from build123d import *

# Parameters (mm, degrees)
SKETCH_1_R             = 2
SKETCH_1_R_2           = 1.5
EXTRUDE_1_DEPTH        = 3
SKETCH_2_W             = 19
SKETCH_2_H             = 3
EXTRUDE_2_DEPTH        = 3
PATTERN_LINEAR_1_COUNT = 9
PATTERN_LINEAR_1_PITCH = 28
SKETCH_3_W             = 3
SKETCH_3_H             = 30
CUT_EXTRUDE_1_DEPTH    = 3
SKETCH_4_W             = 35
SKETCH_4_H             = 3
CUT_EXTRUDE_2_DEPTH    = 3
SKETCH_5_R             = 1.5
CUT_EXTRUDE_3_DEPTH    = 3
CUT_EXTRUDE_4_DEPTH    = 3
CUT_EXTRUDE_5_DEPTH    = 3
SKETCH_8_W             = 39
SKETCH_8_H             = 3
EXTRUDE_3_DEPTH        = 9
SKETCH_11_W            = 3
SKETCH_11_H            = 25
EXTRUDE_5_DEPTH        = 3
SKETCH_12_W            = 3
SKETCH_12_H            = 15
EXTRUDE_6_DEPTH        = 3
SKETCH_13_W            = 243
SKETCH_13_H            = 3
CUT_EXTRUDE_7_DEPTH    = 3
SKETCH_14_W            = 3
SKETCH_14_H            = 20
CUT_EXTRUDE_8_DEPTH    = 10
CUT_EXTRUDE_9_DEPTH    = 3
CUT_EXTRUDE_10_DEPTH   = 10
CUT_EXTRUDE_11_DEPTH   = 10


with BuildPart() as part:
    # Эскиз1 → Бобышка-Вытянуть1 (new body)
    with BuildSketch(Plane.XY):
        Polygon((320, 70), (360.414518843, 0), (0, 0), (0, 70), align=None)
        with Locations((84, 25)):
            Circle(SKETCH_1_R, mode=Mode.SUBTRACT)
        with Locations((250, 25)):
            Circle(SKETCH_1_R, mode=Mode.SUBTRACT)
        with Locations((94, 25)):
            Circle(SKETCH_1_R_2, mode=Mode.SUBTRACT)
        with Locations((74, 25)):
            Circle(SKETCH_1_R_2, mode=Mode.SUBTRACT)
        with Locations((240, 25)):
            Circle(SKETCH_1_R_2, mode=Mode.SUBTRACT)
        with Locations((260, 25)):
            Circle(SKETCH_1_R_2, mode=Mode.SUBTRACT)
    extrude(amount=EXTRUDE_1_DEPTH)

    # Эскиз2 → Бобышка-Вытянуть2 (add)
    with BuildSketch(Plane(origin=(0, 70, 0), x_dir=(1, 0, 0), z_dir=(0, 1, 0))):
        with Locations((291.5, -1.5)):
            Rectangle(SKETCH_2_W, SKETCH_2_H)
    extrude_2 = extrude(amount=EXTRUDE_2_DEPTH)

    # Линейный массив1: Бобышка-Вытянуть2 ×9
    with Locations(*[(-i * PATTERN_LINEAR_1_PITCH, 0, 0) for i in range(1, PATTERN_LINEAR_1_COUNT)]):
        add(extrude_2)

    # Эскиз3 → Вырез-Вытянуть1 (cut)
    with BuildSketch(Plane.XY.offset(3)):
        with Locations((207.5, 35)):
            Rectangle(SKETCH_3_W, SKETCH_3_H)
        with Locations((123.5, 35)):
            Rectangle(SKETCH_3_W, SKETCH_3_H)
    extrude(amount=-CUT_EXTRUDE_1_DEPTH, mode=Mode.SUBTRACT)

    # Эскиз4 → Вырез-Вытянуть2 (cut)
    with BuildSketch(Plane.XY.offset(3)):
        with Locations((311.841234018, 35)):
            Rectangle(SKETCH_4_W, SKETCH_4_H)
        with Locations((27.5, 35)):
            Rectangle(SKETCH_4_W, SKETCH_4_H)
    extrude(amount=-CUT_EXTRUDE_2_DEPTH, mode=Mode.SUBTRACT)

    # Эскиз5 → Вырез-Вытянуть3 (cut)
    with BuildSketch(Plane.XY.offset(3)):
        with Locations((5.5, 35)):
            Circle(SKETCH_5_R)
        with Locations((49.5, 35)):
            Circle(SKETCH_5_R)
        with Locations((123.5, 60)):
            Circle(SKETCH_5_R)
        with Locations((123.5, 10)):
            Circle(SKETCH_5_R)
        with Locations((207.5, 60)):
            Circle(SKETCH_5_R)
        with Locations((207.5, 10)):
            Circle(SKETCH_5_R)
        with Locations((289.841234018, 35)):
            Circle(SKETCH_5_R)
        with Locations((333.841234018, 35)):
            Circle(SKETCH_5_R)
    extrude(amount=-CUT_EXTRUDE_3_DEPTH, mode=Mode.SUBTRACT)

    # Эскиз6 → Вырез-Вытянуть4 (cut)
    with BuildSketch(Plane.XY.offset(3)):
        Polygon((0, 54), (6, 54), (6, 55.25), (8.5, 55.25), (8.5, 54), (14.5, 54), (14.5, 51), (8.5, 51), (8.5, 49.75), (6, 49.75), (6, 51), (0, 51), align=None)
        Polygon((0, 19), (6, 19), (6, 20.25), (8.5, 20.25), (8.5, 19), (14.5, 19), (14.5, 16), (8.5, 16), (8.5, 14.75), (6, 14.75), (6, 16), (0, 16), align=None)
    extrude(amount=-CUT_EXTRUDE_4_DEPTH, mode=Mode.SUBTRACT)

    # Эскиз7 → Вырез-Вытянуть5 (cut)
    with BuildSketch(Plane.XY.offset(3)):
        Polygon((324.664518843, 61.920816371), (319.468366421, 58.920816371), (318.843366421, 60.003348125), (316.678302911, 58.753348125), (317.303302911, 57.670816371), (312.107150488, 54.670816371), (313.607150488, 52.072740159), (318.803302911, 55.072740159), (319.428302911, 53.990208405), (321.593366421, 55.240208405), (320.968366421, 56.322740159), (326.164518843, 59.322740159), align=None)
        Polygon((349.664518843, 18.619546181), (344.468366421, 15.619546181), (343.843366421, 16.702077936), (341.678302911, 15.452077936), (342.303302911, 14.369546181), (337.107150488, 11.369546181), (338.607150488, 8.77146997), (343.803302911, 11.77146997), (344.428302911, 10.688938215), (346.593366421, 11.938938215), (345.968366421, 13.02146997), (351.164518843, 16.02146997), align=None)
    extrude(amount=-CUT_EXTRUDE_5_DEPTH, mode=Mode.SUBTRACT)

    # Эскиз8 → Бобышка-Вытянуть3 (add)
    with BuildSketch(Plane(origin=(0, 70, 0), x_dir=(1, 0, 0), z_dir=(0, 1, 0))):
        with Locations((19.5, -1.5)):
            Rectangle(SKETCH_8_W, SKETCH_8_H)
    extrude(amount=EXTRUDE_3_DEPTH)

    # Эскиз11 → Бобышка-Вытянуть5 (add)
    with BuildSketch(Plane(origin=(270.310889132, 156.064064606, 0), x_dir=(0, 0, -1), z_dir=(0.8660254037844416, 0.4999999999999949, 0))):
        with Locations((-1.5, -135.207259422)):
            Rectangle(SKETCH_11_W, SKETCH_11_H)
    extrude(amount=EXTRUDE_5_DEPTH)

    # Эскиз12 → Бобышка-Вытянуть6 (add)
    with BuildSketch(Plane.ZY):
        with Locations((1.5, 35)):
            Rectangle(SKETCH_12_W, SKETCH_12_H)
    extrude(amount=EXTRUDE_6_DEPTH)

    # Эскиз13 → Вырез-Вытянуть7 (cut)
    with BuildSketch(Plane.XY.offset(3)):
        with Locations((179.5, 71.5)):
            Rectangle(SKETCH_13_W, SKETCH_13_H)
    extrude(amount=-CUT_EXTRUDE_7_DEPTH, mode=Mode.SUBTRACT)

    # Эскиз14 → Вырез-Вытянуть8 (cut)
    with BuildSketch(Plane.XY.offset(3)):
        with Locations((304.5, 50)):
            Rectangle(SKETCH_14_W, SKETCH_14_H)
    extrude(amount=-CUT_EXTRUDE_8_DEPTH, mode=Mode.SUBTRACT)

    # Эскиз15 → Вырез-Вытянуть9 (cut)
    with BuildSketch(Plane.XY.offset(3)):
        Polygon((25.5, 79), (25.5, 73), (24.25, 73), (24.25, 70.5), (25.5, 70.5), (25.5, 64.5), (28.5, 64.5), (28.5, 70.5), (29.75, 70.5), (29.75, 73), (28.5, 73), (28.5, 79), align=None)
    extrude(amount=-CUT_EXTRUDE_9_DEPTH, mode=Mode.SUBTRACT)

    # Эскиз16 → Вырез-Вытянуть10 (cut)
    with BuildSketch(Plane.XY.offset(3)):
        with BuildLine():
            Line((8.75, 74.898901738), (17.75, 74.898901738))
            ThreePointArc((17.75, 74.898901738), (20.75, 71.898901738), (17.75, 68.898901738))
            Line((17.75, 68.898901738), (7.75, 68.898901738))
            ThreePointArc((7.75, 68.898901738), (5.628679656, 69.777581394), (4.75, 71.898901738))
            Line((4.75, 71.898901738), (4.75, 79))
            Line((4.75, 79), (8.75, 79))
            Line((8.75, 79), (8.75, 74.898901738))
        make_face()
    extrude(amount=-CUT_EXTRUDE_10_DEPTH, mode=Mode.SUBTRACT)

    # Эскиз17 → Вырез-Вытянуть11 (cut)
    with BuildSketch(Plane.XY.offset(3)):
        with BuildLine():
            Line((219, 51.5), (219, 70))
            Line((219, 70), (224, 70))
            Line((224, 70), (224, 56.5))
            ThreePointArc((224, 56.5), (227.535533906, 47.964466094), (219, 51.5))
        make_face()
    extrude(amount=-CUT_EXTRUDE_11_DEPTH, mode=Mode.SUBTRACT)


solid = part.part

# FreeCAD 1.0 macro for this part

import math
import FreeCAD as App
import Part
import Sketcher
Q = App.Units.Quantity

doc = App.newDocument("Part")
body = doc.addObject("PartDesign::Body", "Body")

# Sketch on XY plane
sketch1 = body.newObject("Sketcher::SketchObject", "Sketch")
sketch1.AttachmentSupport = (doc.getObject("XY_Plane"), [""])
sketch1.MapMode = "FlatFace"
sketch1.addGeometry(Part.LineSegment(App.Vector(360.414519, 0, 0), App.Vector(320, 70, 0)), False)
sketch1.addGeometry(Part.LineSegment(App.Vector(320, 70, 0), App.Vector(0, 70, 0)), False)
sketch1.addGeometry(Part.LineSegment(App.Vector(0, 70, 0), App.Vector(0, 0, 0)), False)
sketch1.addGeometry(Part.LineSegment(App.Vector(0, 0, 0), App.Vector(360.414519, 0, 0)), False)
sketch1.addGeometry(Part.Circle(App.Vector(260, 25, 0), App.Vector(0, 0, 1), 1.5), False)
sketch1.addGeometry(Part.Circle(App.Vector(250, 25, 0), App.Vector(0, 0, 1), 2), False)
sketch1.addGeometry(Part.Circle(App.Vector(240, 25, 0), App.Vector(0, 0, 1), 1.5), False)
sketch1.addGeometry(Part.Circle(App.Vector(94, 25, 0), App.Vector(0, 0, 1), 1.5), False)
sketch1.addGeometry(Part.Circle(App.Vector(84, 25, 0), App.Vector(0, 0, 1), 2), False)
sketch1.addGeometry(Part.Circle(App.Vector(74, 25, 0), App.Vector(0, 0, 1), 1.5), False)
sketch1.addConstraint(Sketcher.Constraint("Coincident", 0, 2, 1, 1))
sketch1.addConstraint(Sketcher.Constraint("Coincident", 1, 2, 2, 1))
sketch1.addConstraint(Sketcher.Constraint("Coincident", 2, 2, 3, 1))
sketch1.addConstraint(Sketcher.Constraint("Coincident", 3, 2, 0, 1))
sketch1.addConstraint(Sketcher.Constraint("Horizontal", 1))
sketch1.addConstraint(Sketcher.Constraint("Vertical", 2))
sketch1.addConstraint(Sketcher.Constraint("Horizontal", 3))
sketch1.addConstraint(Sketcher.Constraint("Coincident", 2, 2, -1, 1))
sketch1.addConstraint(Sketcher.Constraint("Equal", 4, 6))
sketch1.addConstraint(Sketcher.Constraint("Equal", 6, 7))
sketch1.addConstraint(Sketcher.Constraint("Equal", 5, 8))
sketch1.addConstraint(Sketcher.Constraint("Equal", 7, 9))
sketch1.addConstraint(Sketcher.Constraint("Horizontal", 4, 3, 5, 3))
sketch1.addConstraint(Sketcher.Constraint("Horizontal", 5, 3, 6, 3))
sketch1.addConstraint(Sketcher.Constraint("Horizontal", 6, 3, 7, 3))
sketch1.addConstraint(Sketcher.Constraint("Horizontal", 7, 3, 8, 3))
sketch1.addConstraint(Sketcher.Constraint("Horizontal", 8, 3, 9, 3))
sketch1.addConstraint(Sketcher.Constraint("Diameter", 4, Q("3 mm")))
sketch1.addConstraint(Sketcher.Constraint("Diameter", 5, Q("4 mm")))
sketch1.addConstraint(Sketcher.Constraint("DistanceX", 1, 2, 1, 1, Q("320 mm")))
sketch1.addConstraint(Sketcher.Constraint("DistanceY", 2, 2, 2, 1, Q("70 mm")))
sketch1.addConstraint(Sketcher.Constraint("Angle", 0, Q("120 deg")))
sketch1.addConstraint(Sketcher.Constraint("DistanceX", -1, 1, 4, 3, Q("260 mm")))
sketch1.addConstraint(Sketcher.Constraint("DistanceY", -1, 1, 4, 3, Q("25 mm")))
sketch1.addConstraint(Sketcher.Constraint("DistanceX", -1, 1, 5, 3, Q("250 mm")))
sketch1.addConstraint(Sketcher.Constraint("DistanceX", -1, 1, 6, 3, Q("240 mm")))
sketch1.addConstraint(Sketcher.Constraint("DistanceX", -1, 1, 7, 3, Q("94 mm")))
sketch1.addConstraint(Sketcher.Constraint("DistanceX", -1, 1, 8, 3, Q("84 mm")))
sketch1.addConstraint(Sketcher.Constraint("DistanceX", -1, 1, 9, 3, Q("74 mm")))
pad1 = body.newObject("PartDesign::Pad", "Pad")
pad1.Profile = sketch1
pad1.Length = 3

# Sketch on XZ plane
sketch2 = body.newObject("Sketcher::SketchObject", "Sketch001")
sketch2.AttachmentSupport = (doc.getObject("XZ_Plane"), [""])
sketch2.MapMode = "FlatFace"
sketch2.AttachmentOffset = App.Placement(App.Vector(0, 0, -70), App.Rotation())
sketch2.addGeometry(Part.LineSegment(App.Vector(282, 0, 0), App.Vector(282, 3, 0)), False)
sketch2.addGeometry(Part.LineSegment(App.Vector(282, 3, 0), App.Vector(301, 3, 0)), False)
sketch2.addGeometry(Part.LineSegment(App.Vector(301, 3, 0), App.Vector(301, 0, 0)), False)
sketch2.addGeometry(Part.LineSegment(App.Vector(301, 0, 0), App.Vector(282, 0, 0)), False)
sketch2.addConstraint(Sketcher.Constraint("Coincident", 0, 2, 1, 1))
sketch2.addConstraint(Sketcher.Constraint("Coincident", 1, 2, 2, 1))
sketch2.addConstraint(Sketcher.Constraint("Coincident", 2, 2, 3, 1))
sketch2.addConstraint(Sketcher.Constraint("Coincident", 3, 2, 0, 1))
sketch2.addConstraint(Sketcher.Constraint("Vertical", 0))
sketch2.addConstraint(Sketcher.Constraint("Horizontal", 1))
sketch2.addConstraint(Sketcher.Constraint("Vertical", 2))
sketch2.addConstraint(Sketcher.Constraint("Horizontal", 3))
sketch2.addConstraint(Sketcher.Constraint("PointOnObject", 2, 2, -1))
sketch2.addConstraint(Sketcher.Constraint("DistanceX", 1, 1, 1, 2, Q("19 mm")))
sketch2.addConstraint(Sketcher.Constraint("DistanceY", 0, 1, 0, 2, Q("3 mm")))
sketch2.addConstraint(Sketcher.Constraint("DistanceX", -1, 1, 0, 2, Q("282 mm")))
pad2 = body.newObject("PartDesign::Pad", "Pad001")
pad2.Profile = sketch2
pad2.Length = 3
pad2.Reversed = True
doc.recompute()

linearpattern = body.newObject("PartDesign::LinearPattern", "LinearPattern")
linearpattern.Originals = [pad2]
linearpattern.Direction = (doc.getObject("X_Axis"), [""])
linearpattern.Mode = "offset"
linearpattern.Offset = 28
linearpattern.Occurrences = 9
linearpattern.Reversed = True
body.Tip = linearpattern

# Sketch on XY plane
sketch3 = body.newObject("Sketcher::SketchObject", "Sketch002")
sketch3.AttachmentSupport = (doc.getObject("XY_Plane"), [""])
sketch3.MapMode = "FlatFace"
sketch3.AttachmentOffset = App.Placement(App.Vector(0, 0, 3), App.Rotation())
sketch3.addGeometry(Part.LineSegment(App.Vector(206, 50, 0), App.Vector(206, 20, 0)), False)
sketch3.addGeometry(Part.LineSegment(App.Vector(206, 20, 0), App.Vector(209, 20, 0)), False)
sketch3.addGeometry(Part.LineSegment(App.Vector(209, 20, 0), App.Vector(209, 50, 0)), False)
sketch3.addGeometry(Part.LineSegment(App.Vector(209, 50, 0), App.Vector(206, 50, 0)), False)
sketch3.addGeometry(Part.LineSegment(App.Vector(122, 50, 0), App.Vector(122, 20, 0)), False)
sketch3.addGeometry(Part.LineSegment(App.Vector(122, 20, 0), App.Vector(125, 20, 0)), False)
sketch3.addGeometry(Part.LineSegment(App.Vector(125, 20, 0), App.Vector(125, 50, 0)), False)
sketch3.addGeometry(Part.LineSegment(App.Vector(125, 50, 0), App.Vector(122, 50, 0)), False)
sketch3.addConstraint(Sketcher.Constraint("Coincident", 0, 2, 1, 1))
sketch3.addConstraint(Sketcher.Constraint("Coincident", 1, 2, 2, 1))
sketch3.addConstraint(Sketcher.Constraint("Coincident", 2, 2, 3, 1))
sketch3.addConstraint(Sketcher.Constraint("Coincident", 3, 2, 0, 1))
sketch3.addConstraint(Sketcher.Constraint("Coincident", 4, 2, 5, 1))
sketch3.addConstraint(Sketcher.Constraint("Coincident", 5, 2, 6, 1))
sketch3.addConstraint(Sketcher.Constraint("Coincident", 6, 2, 7, 1))
sketch3.addConstraint(Sketcher.Constraint("Coincident", 7, 2, 4, 1))
sketch3.addConstraint(Sketcher.Constraint("Vertical", 0))
sketch3.addConstraint(Sketcher.Constraint("Horizontal", 1))
sketch3.addConstraint(Sketcher.Constraint("Vertical", 2))
sketch3.addConstraint(Sketcher.Constraint("Horizontal", 3))
sketch3.addConstraint(Sketcher.Constraint("Vertical", 4))
sketch3.addConstraint(Sketcher.Constraint("Horizontal", 5))
sketch3.addConstraint(Sketcher.Constraint("Vertical", 6))
sketch3.addConstraint(Sketcher.Constraint("Horizontal", 7))
sketch3.addConstraint(Sketcher.Constraint("Horizontal", 1, 2, 4, 2))
sketch3.addConstraint(Sketcher.Constraint("Horizontal", 3, 2, 6, 2))
sketch3.addConstraint(Sketcher.Constraint("Equal", 3, 5))
sketch3.addConstraint(Sketcher.Constraint("DistanceX", 1, 1, 1, 2, Q("3 mm")))
sketch3.addConstraint(Sketcher.Constraint("DistanceY", 0, 2, 0, 1, Q("30 mm")))
sketch3.addConstraint(Sketcher.Constraint("DistanceX", -1, 1, 0, 2, Q("206 mm")))
sketch3.addConstraint(Sketcher.Constraint("DistanceY", -1, 1, 0, 2, Q("20 mm")))
sketch3.addConstraint(Sketcher.Constraint("DistanceX", -1, 1, 4, 2, Q("122 mm")))
pocket1 = body.newObject("PartDesign::Pocket", "Pocket")
pocket1.Profile = sketch3
pocket1.Length = 3

# Sketch on XY plane
sketch4 = body.newObject("Sketcher::SketchObject", "Sketch003")
sketch4.AttachmentSupport = (doc.getObject("XY_Plane"), [""])
sketch4.MapMode = "FlatFace"
sketch4.AttachmentOffset = App.Placement(App.Vector(0, 0, 3), App.Rotation())
sketch4.addGeometry(Part.LineSegment(App.Vector(294.341234, 36.5, 0), App.Vector(294.341234, 33.5, 0)), False)
sketch4.addGeometry(Part.LineSegment(App.Vector(294.341234, 33.5, 0), App.Vector(329.341234, 33.5, 0)), False)
sketch4.addGeometry(Part.LineSegment(App.Vector(329.341234, 33.5, 0), App.Vector(329.341234, 36.5, 0)), False)
sketch4.addGeometry(Part.LineSegment(App.Vector(329.341234, 36.5, 0), App.Vector(294.341234, 36.5, 0)), False)
sketch4.addGeometry(Part.LineSegment(App.Vector(10, 36.5, 0), App.Vector(10, 33.5, 0)), False)
sketch4.addGeometry(Part.LineSegment(App.Vector(10, 33.5, 0), App.Vector(45, 33.5, 0)), False)
sketch4.addGeometry(Part.LineSegment(App.Vector(45, 33.5, 0), App.Vector(45, 36.5, 0)), False)
sketch4.addGeometry(Part.LineSegment(App.Vector(45, 36.5, 0), App.Vector(10, 36.5, 0)), False)
sketch4.addConstraint(Sketcher.Constraint("Coincident", 0, 2, 1, 1))
sketch4.addConstraint(Sketcher.Constraint("Coincident", 1, 2, 2, 1))
sketch4.addConstraint(Sketcher.Constraint("Coincident", 2, 2, 3, 1))
sketch4.addConstraint(Sketcher.Constraint("Coincident", 3, 2, 0, 1))
sketch4.addConstraint(Sketcher.Constraint("Coincident", 4, 2, 5, 1))
sketch4.addConstraint(Sketcher.Constraint("Coincident", 5, 2, 6, 1))
sketch4.addConstraint(Sketcher.Constraint("Coincident", 6, 2, 7, 1))
sketch4.addConstraint(Sketcher.Constraint("Coincident", 7, 2, 4, 1))
sketch4.addConstraint(Sketcher.Constraint("Vertical", 0))
sketch4.addConstraint(Sketcher.Constraint("Horizontal", 1))
sketch4.addConstraint(Sketcher.Constraint("Vertical", 2))
sketch4.addConstraint(Sketcher.Constraint("Horizontal", 3))
sketch4.addConstraint(Sketcher.Constraint("Vertical", 4))
sketch4.addConstraint(Sketcher.Constraint("Horizontal", 5))
sketch4.addConstraint(Sketcher.Constraint("Vertical", 6))
sketch4.addConstraint(Sketcher.Constraint("Horizontal", 7))
sketch4.addConstraint(Sketcher.Constraint("Horizontal", 1, 2, 4, 2))
sketch4.addConstraint(Sketcher.Constraint("Horizontal", 3, 2, 6, 2))
sketch4.addConstraint(Sketcher.Constraint("Equal", 3, 5))
sketch4.addConstraint(Sketcher.Constraint("DistanceX", 1, 1, 1, 2, Q("35 mm")))
sketch4.addConstraint(Sketcher.Constraint("DistanceY", 0, 2, 0, 1, Q("3 mm")))
sketch4.addConstraint(Sketcher.Constraint("DistanceX", -1, 1, 4, 2, Q("10 mm")))
sketch4.addConstraint(Sketcher.Constraint("DistanceY", -1, 1, 0, 2, Q("33.5 mm")))
sketch4.addConstraint(Sketcher.Constraint("DistanceX", -1, 1, 0, 2, Q("294.341234 mm")))
pocket2 = body.newObject("PartDesign::Pocket", "Pocket001")
pocket2.Profile = sketch4
pocket2.Length = 3

# Sketch on XY plane
sketch5 = body.newObject("Sketcher::SketchObject", "Sketch004")
sketch5.AttachmentSupport = (doc.getObject("XY_Plane"), [""])
sketch5.MapMode = "FlatFace"
sketch5.AttachmentOffset = App.Placement(App.Vector(0, 0, 3), App.Rotation())
sketch5.addGeometry(Part.Circle(App.Vector(5.5, 35, 0), App.Vector(0, 0, 1), 1.5), False)
sketch5.addGeometry(Part.Circle(App.Vector(49.5, 35, 0), App.Vector(0, 0, 1), 1.5), False)
sketch5.addGeometry(Part.Circle(App.Vector(123.5, 60, 0), App.Vector(0, 0, 1), 1.5), False)
sketch5.addGeometry(Part.Circle(App.Vector(123.5, 10, 0), App.Vector(0, 0, 1), 1.5), False)
sketch5.addGeometry(Part.Circle(App.Vector(207.5, 60, 0), App.Vector(0, 0, 1), 1.5), False)
sketch5.addGeometry(Part.Circle(App.Vector(207.5, 10, 0), App.Vector(0, 0, 1), 1.5), False)
sketch5.addGeometry(Part.Circle(App.Vector(289.841234, 35, 0), App.Vector(0, 0, 1), 1.5), False)
sketch5.addGeometry(Part.Circle(App.Vector(333.841234, 35, 0), App.Vector(0, 0, 1), 1.5), False)
sketch5.addConstraint(Sketcher.Constraint("Equal", 0, 1))
sketch5.addConstraint(Sketcher.Constraint("Equal", 1, 2))
sketch5.addConstraint(Sketcher.Constraint("Equal", 2, 3))
sketch5.addConstraint(Sketcher.Constraint("Equal", 3, 4))
sketch5.addConstraint(Sketcher.Constraint("Equal", 4, 5))
sketch5.addConstraint(Sketcher.Constraint("Equal", 5, 6))
sketch5.addConstraint(Sketcher.Constraint("Equal", 6, 7))
sketch5.addConstraint(Sketcher.Constraint("Horizontal", 0, 3, 1, 3))
sketch5.addConstraint(Sketcher.Constraint("Horizontal", 2, 3, 4, 3))
sketch5.addConstraint(Sketcher.Constraint("Horizontal", 3, 3, 5, 3))
sketch5.addConstraint(Sketcher.Constraint("Horizontal", 1, 3, 6, 3))
sketch5.addConstraint(Sketcher.Constraint("Horizontal", 6, 3, 7, 3))
sketch5.addConstraint(Sketcher.Constraint("Vertical", 2, 3, 3, 3))
sketch5.addConstraint(Sketcher.Constraint("Vertical", 4, 3, 5, 3))
sketch5.addConstraint(Sketcher.Constraint("Diameter", 0, Q("3 mm")))
sketch5.addConstraint(Sketcher.Constraint("DistanceY", -1, 1, 0, 3, Q("35 mm")))
sketch5.addConstraint(Sketcher.Constraint("DistanceY", -1, 1, 2, 3, Q("60 mm")))
sketch5.addConstraint(Sketcher.Constraint("DistanceY", -1, 1, 3, 3, Q("10 mm")))
sketch5.addConstraint(Sketcher.Constraint("DistanceX", 0, 3, 1, 3, Q("44 mm")))
sketch5.addConstraint(Sketcher.Constraint("DistanceX", 1, 3, 2, 3, Q("74 mm")))
sketch5.addConstraint(Sketcher.Constraint("DistanceX", 2, 3, 4, 3, Q("84 mm")))
sketch5.addConstraint(Sketcher.Constraint("DistanceX", 6, 3, 7, 3, Q("44 mm")))
sketch5.addConstraint(Sketcher.Constraint("DistanceX", -1, 1, 0, 3, Q("5.5 mm")))
sketch5.addConstraint(Sketcher.Constraint("DistanceX", -1, 1, 6, 3, Q("289.841234 mm")))
pocket3 = body.newObject("PartDesign::Pocket", "Pocket002")
pocket3.Profile = sketch5
pocket3.Length = 3

# Sketch on XY plane
sketch6 = body.newObject("Sketcher::SketchObject", "Sketch005")
sketch6.AttachmentSupport = (doc.getObject("XY_Plane"), [""])
sketch6.MapMode = "FlatFace"
sketch6.AttachmentOffset = App.Placement(App.Vector(0, 0, 3), App.Rotation())
sketch6.addGeometry(Part.LineSegment(App.Vector(6, 54, 0), App.Vector(0, 54, 0)), False)
sketch6.addGeometry(Part.LineSegment(App.Vector(0, 54, 0), App.Vector(0, 51, 0)), False)
sketch6.addGeometry(Part.LineSegment(App.Vector(0, 51, 0), App.Vector(6, 51, 0)), False)
sketch6.addGeometry(Part.LineSegment(App.Vector(6, 51, 0), App.Vector(6, 49.75, 0)), False)
sketch6.addGeometry(Part.LineSegment(App.Vector(6, 49.75, 0), App.Vector(8.5, 49.75, 0)), False)
sketch6.addGeometry(Part.LineSegment(App.Vector(8.5, 49.75, 0), App.Vector(8.5, 51, 0)), False)
sketch6.addGeometry(Part.LineSegment(App.Vector(8.5, 51, 0), App.Vector(14.5, 51, 0)), False)
sketch6.addGeometry(Part.LineSegment(App.Vector(14.5, 51, 0), App.Vector(14.5, 54, 0)), False)
sketch6.addGeometry(Part.LineSegment(App.Vector(14.5, 54, 0), App.Vector(8.5, 54, 0)), False)
sketch6.addGeometry(Part.LineSegment(App.Vector(8.5, 54, 0), App.Vector(8.5, 55.25, 0)), False)
sketch6.addGeometry(Part.LineSegment(App.Vector(8.5, 55.25, 0), App.Vector(6, 55.25, 0)), False)
sketch6.addGeometry(Part.LineSegment(App.Vector(6, 55.25, 0), App.Vector(6, 54, 0)), False)
sketch6.addGeometry(Part.LineSegment(App.Vector(6, 19, 0), App.Vector(0, 19, 0)), False)
sketch6.addGeometry(Part.LineSegment(App.Vector(0, 19, 0), App.Vector(0, 16, 0)), False)
sketch6.addGeometry(Part.LineSegment(App.Vector(0, 16, 0), App.Vector(6, 16, 0)), False)
sketch6.addGeometry(Part.LineSegment(App.Vector(6, 16, 0), App.Vector(6, 14.75, 0)), False)
sketch6.addGeometry(Part.LineSegment(App.Vector(6, 14.75, 0), App.Vector(8.5, 14.75, 0)), False)
sketch6.addGeometry(Part.LineSegment(App.Vector(8.5, 14.75, 0), App.Vector(8.5, 16, 0)), False)
sketch6.addGeometry(Part.LineSegment(App.Vector(8.5, 16, 0), App.Vector(14.5, 16, 0)), False)
sketch6.addGeometry(Part.LineSegment(App.Vector(14.5, 16, 0), App.Vector(14.5, 19, 0)), False)
sketch6.addGeometry(Part.LineSegment(App.Vector(14.5, 19, 0), App.Vector(8.5, 19, 0)), False)
sketch6.addGeometry(Part.LineSegment(App.Vector(8.5, 19, 0), App.Vector(8.5, 20.25, 0)), False)
sketch6.addGeometry(Part.LineSegment(App.Vector(8.5, 20.25, 0), App.Vector(6, 20.25, 0)), False)
sketch6.addGeometry(Part.LineSegment(App.Vector(6, 20.25, 0), App.Vector(6, 19, 0)), False)
sketch6.addConstraint(Sketcher.Constraint("Coincident", 0, 2, 1, 1))
sketch6.addConstraint(Sketcher.Constraint("Coincident", 1, 2, 2, 1))
sketch6.addConstraint(Sketcher.Constraint("Coincident", 2, 2, 3, 1))
sketch6.addConstraint(Sketcher.Constraint("Coincident", 3, 2, 4, 1))
sketch6.addConstraint(Sketcher.Constraint("Coincident", 4, 2, 5, 1))
sketch6.addConstraint(Sketcher.Constraint("Coincident", 5, 2, 6, 1))
sketch6.addConstraint(Sketcher.Constraint("Coincident", 6, 2, 7, 1))
sketch6.addConstraint(Sketcher.Constraint("Coincident", 7, 2, 8, 1))
sketch6.addConstraint(Sketcher.Constraint("Coincident", 8, 2, 9, 1))
sketch6.addConstraint(Sketcher.Constraint("Coincident", 9, 2, 10, 1))
sketch6.addConstraint(Sketcher.Constraint("Coincident", 10, 2, 11, 1))
sketch6.addConstraint(Sketcher.Constraint("Coincident", 11, 2, 0, 1))
sketch6.addConstraint(Sketcher.Constraint("Coincident", 12, 2, 13, 1))
sketch6.addConstraint(Sketcher.Constraint("Coincident", 13, 2, 14, 1))
sketch6.addConstraint(Sketcher.Constraint("Coincident", 14, 2, 15, 1))
sketch6.addConstraint(Sketcher.Constraint("Coincident", 15, 2, 16, 1))
sketch6.addConstraint(Sketcher.Constraint("Coincident", 16, 2, 17, 1))
sketch6.addConstraint(Sketcher.Constraint("Coincident", 17, 2, 18, 1))
sketch6.addConstraint(Sketcher.Constraint("Coincident", 18, 2, 19, 1))
sketch6.addConstraint(Sketcher.Constraint("Coincident", 19, 2, 20, 1))
sketch6.addConstraint(Sketcher.Constraint("Coincident", 20, 2, 21, 1))
sketch6.addConstraint(Sketcher.Constraint("Coincident", 21, 2, 22, 1))
sketch6.addConstraint(Sketcher.Constraint("Coincident", 22, 2, 23, 1))
sketch6.addConstraint(Sketcher.Constraint("Coincident", 23, 2, 12, 1))
sketch6.addConstraint(Sketcher.Constraint("Horizontal", 0))
sketch6.addConstraint(Sketcher.Constraint("Vertical", 1))
sketch6.addConstraint(Sketcher.Constraint("Horizontal", 2))
sketch6.addConstraint(Sketcher.Constraint("Vertical", 3))
sketch6.addConstraint(Sketcher.Constraint("Horizontal", 4))
sketch6.addConstraint(Sketcher.Constraint("Vertical", 5))
sketch6.addConstraint(Sketcher.Constraint("Horizontal", 6))
sketch6.addConstraint(Sketcher.Constraint("Vertical", 7))
sketch6.addConstraint(Sketcher.Constraint("Horizontal", 8))
sketch6.addConstraint(Sketcher.Constraint("Vertical", 9))
sketch6.addConstraint(Sketcher.Constraint("Horizontal", 10))
sketch6.addConstraint(Sketcher.Constraint("Vertical", 11))
sketch6.addConstraint(Sketcher.Constraint("Horizontal", 12))
sketch6.addConstraint(Sketcher.Constraint("Vertical", 13))
sketch6.addConstraint(Sketcher.Constraint("Horizontal", 14))
sketch6.addConstraint(Sketcher.Constraint("Vertical", 15))
sketch6.addConstraint(Sketcher.Constraint("Horizontal", 16))
sketch6.addConstraint(Sketcher.Constraint("Vertical", 17))
sketch6.addConstraint(Sketcher.Constraint("Horizontal", 18))
sketch6.addConstraint(Sketcher.Constraint("Vertical", 19))
sketch6.addConstraint(Sketcher.Constraint("Horizontal", 20))
sketch6.addConstraint(Sketcher.Constraint("Vertical", 21))
sketch6.addConstraint(Sketcher.Constraint("Horizontal", 22))
sketch6.addConstraint(Sketcher.Constraint("Vertical", 23))
sketch6.addConstraint(Sketcher.Constraint("PointOnObject", 0, 2, -2))
sketch6.addConstraint(Sketcher.Constraint("PointOnObject", 12, 2, -2))
sketch6.addConstraint(Sketcher.Constraint("Horizontal", 2, 2, 5, 2))
sketch6.addConstraint(Sketcher.Constraint("Horizontal", 0, 2, 7, 2))
sketch6.addConstraint(Sketcher.Constraint("Horizontal", 14, 2, 17, 2))
sketch6.addConstraint(Sketcher.Constraint("Horizontal", 12, 2, 19, 2))
sketch6.addConstraint(Sketcher.Constraint("Vertical", 5, 2, 8, 2))
sketch6.addConstraint(Sketcher.Constraint("Vertical", 3, 2, 10, 2))
sketch6.addConstraint(Sketcher.Constraint("Vertical", 11, 2, 14, 2))
sketch6.addConstraint(Sketcher.Constraint("Vertical", 9, 2, 16, 2))
sketch6.addConstraint(Sketcher.Constraint("Vertical", 7, 2, 18, 2))
sketch6.addConstraint(Sketcher.Constraint("Vertical", 17, 2, 20, 2))
sketch6.addConstraint(Sketcher.Constraint("Vertical", 15, 2, 22, 2))
sketch6.addConstraint(Sketcher.Constraint("Equal", 2, 6))
sketch6.addConstraint(Sketcher.Constraint("Equal", 5, 9))
sketch6.addConstraint(Sketcher.Constraint("Equal", 7, 13))
sketch6.addConstraint(Sketcher.Constraint("Equal", 11, 15))
sketch6.addConstraint(Sketcher.Constraint("Equal", 17, 21))
sketch6.addConstraint(Sketcher.Constraint("DistanceX", 0, 2, 0, 1, Q("6 mm")))
sketch6.addConstraint(Sketcher.Constraint("DistanceY", 1, 2, 1, 1, Q("3 mm")))
sketch6.addConstraint(Sketcher.Constraint("DistanceX", 4, 1, 4, 2, Q("2.5 mm")))
sketch6.addConstraint(Sketcher.Constraint("DistanceY", -1, 1, 0, 2, Q("54 mm")))
sketch6.addConstraint(Sketcher.Constraint("DistanceY", -1, 1, 12, 2, Q("19 mm")))
sketch6.addConstraint(Sketcher.Constraint("DistanceY", 3, 2, 3, 1, Q("1.25 mm")))
pocket4 = body.newObject("PartDesign::Pocket", "Pocket003")
pocket4.Profile = sketch6
pocket4.Length = 3

# Sketch on XY plane
sketch7 = body.newObject("Sketcher::SketchObject", "Sketch006")
sketch7.AttachmentSupport = (doc.getObject("XY_Plane"), [""])
sketch7.MapMode = "FlatFace"
sketch7.AttachmentOffset = App.Placement(App.Vector(0, 0, 3), App.Rotation())
sketch7.addGeometry(Part.LineSegment(App.Vector(324.664519, 61.920816, 0), App.Vector(319.468366, 58.920816, 0)), False)
sketch7.addGeometry(Part.LineSegment(App.Vector(319.468366, 58.920816, 0), App.Vector(318.843366, 60.003348, 0)), False)
sketch7.addGeometry(Part.LineSegment(App.Vector(318.843366, 60.003348, 0), App.Vector(316.678303, 58.753348, 0)), False)
sketch7.addGeometry(Part.LineSegment(App.Vector(316.678303, 58.753348, 0), App.Vector(317.303303, 57.670816, 0)), False)
sketch7.addGeometry(Part.LineSegment(App.Vector(317.303303, 57.670816, 0), App.Vector(312.10715, 54.670816, 0)), False)
sketch7.addGeometry(Part.LineSegment(App.Vector(312.10715, 54.670816, 0), App.Vector(313.60715, 52.07274, 0)), False)
sketch7.addGeometry(Part.LineSegment(App.Vector(313.60715, 52.07274, 0), App.Vector(318.803303, 55.07274, 0)), False)
sketch7.addGeometry(Part.LineSegment(App.Vector(318.803303, 55.07274, 0), App.Vector(319.428303, 53.990208, 0)), False)
sketch7.addGeometry(Part.LineSegment(App.Vector(319.428303, 53.990208, 0), App.Vector(321.593366, 55.240208, 0)), False)
sketch7.addGeometry(Part.LineSegment(App.Vector(321.593366, 55.240208, 0), App.Vector(320.968366, 56.32274, 0)), False)
sketch7.addGeometry(Part.LineSegment(App.Vector(320.968366, 56.32274, 0), App.Vector(326.164519, 59.32274, 0)), False)
sketch7.addGeometry(Part.LineSegment(App.Vector(326.164519, 59.32274, 0), App.Vector(324.664519, 61.920816, 0)), False)
sketch7.addGeometry(Part.LineSegment(App.Vector(349.664519, 18.619546, 0), App.Vector(344.468366, 15.619546, 0)), False)
sketch7.addGeometry(Part.LineSegment(App.Vector(344.468366, 15.619546, 0), App.Vector(343.843366, 16.702078, 0)), False)
sketch7.addGeometry(Part.LineSegment(App.Vector(343.843366, 16.702078, 0), App.Vector(341.678303, 15.452078, 0)), False)
sketch7.addGeometry(Part.LineSegment(App.Vector(341.678303, 15.452078, 0), App.Vector(342.303303, 14.369546, 0)), False)
sketch7.addGeometry(Part.LineSegment(App.Vector(342.303303, 14.369546, 0), App.Vector(337.10715, 11.369546, 0)), False)
sketch7.addGeometry(Part.LineSegment(App.Vector(337.10715, 11.369546, 0), App.Vector(338.60715, 8.77147, 0)), False)
sketch7.addGeometry(Part.LineSegment(App.Vector(338.60715, 8.77147, 0), App.Vector(343.803303, 11.77147, 0)), False)
sketch7.addGeometry(Part.LineSegment(App.Vector(343.803303, 11.77147, 0), App.Vector(344.428303, 10.688938, 0)), False)
sketch7.addGeometry(Part.LineSegment(App.Vector(344.428303, 10.688938, 0), App.Vector(346.593366, 11.938938, 0)), False)
sketch7.addGeometry(Part.LineSegment(App.Vector(346.593366, 11.938938, 0), App.Vector(345.968366, 13.02147, 0)), False)
sketch7.addGeometry(Part.LineSegment(App.Vector(345.968366, 13.02147, 0), App.Vector(351.164519, 16.02147, 0)), False)
sketch7.addGeometry(Part.LineSegment(App.Vector(351.164519, 16.02147, 0), App.Vector(349.664519, 18.619546, 0)), False)
sketch7.addConstraint(Sketcher.Constraint("Coincident", 0, 2, 1, 1))
sketch7.addConstraint(Sketcher.Constraint("Coincident", 1, 2, 2, 1))
sketch7.addConstraint(Sketcher.Constraint("Coincident", 2, 2, 3, 1))
sketch7.addConstraint(Sketcher.Constraint("Coincident", 3, 2, 4, 1))
sketch7.addConstraint(Sketcher.Constraint("Coincident", 4, 2, 5, 1))
sketch7.addConstraint(Sketcher.Constraint("Coincident", 5, 2, 6, 1))
sketch7.addConstraint(Sketcher.Constraint("Coincident", 6, 2, 7, 1))
sketch7.addConstraint(Sketcher.Constraint("Coincident", 7, 2, 8, 1))
sketch7.addConstraint(Sketcher.Constraint("Coincident", 8, 2, 9, 1))
sketch7.addConstraint(Sketcher.Constraint("Coincident", 9, 2, 10, 1))
sketch7.addConstraint(Sketcher.Constraint("Coincident", 10, 2, 11, 1))
sketch7.addConstraint(Sketcher.Constraint("Coincident", 11, 2, 0, 1))
sketch7.addConstraint(Sketcher.Constraint("Coincident", 12, 2, 13, 1))
sketch7.addConstraint(Sketcher.Constraint("Coincident", 13, 2, 14, 1))
sketch7.addConstraint(Sketcher.Constraint("Coincident", 14, 2, 15, 1))
sketch7.addConstraint(Sketcher.Constraint("Coincident", 15, 2, 16, 1))
sketch7.addConstraint(Sketcher.Constraint("Coincident", 16, 2, 17, 1))
sketch7.addConstraint(Sketcher.Constraint("Coincident", 17, 2, 18, 1))
sketch7.addConstraint(Sketcher.Constraint("Coincident", 18, 2, 19, 1))
sketch7.addConstraint(Sketcher.Constraint("Coincident", 19, 2, 20, 1))
sketch7.addConstraint(Sketcher.Constraint("Coincident", 20, 2, 21, 1))
sketch7.addConstraint(Sketcher.Constraint("Coincident", 21, 2, 22, 1))
sketch7.addConstraint(Sketcher.Constraint("Coincident", 22, 2, 23, 1))
sketch7.addConstraint(Sketcher.Constraint("Coincident", 23, 2, 12, 1))
sketch7.addConstraint(Sketcher.Constraint("Perpendicular", 0, 1))
sketch7.addConstraint(Sketcher.Constraint("Perpendicular", 1, 2))
sketch7.addConstraint(Sketcher.Constraint("Perpendicular", 2, 3))
sketch7.addConstraint(Sketcher.Constraint("Perpendicular", 3, 4))
sketch7.addConstraint(Sketcher.Constraint("Perpendicular", 4, 5))
sketch7.addConstraint(Sketcher.Constraint("Perpendicular", 5, 6))
sketch7.addConstraint(Sketcher.Constraint("Perpendicular", 6, 7))
sketch7.addConstraint(Sketcher.Constraint("Perpendicular", 7, 8))
sketch7.addConstraint(Sketcher.Constraint("Perpendicular", 8, 9))
sketch7.addConstraint(Sketcher.Constraint("Perpendicular", 9, 10))
sketch7.addConstraint(Sketcher.Constraint("Perpendicular", 10, 11))
sketch7.addConstraint(Sketcher.Constraint("Perpendicular", 11, 12))
sketch7.addConstraint(Sketcher.Constraint("Perpendicular", 12, 13))
sketch7.addConstraint(Sketcher.Constraint("Perpendicular", 13, 14))
sketch7.addConstraint(Sketcher.Constraint("Perpendicular", 14, 15))
sketch7.addConstraint(Sketcher.Constraint("Perpendicular", 15, 16))
sketch7.addConstraint(Sketcher.Constraint("Perpendicular", 16, 17))
sketch7.addConstraint(Sketcher.Constraint("Perpendicular", 17, 18))
sketch7.addConstraint(Sketcher.Constraint("Perpendicular", 18, 19))
sketch7.addConstraint(Sketcher.Constraint("Perpendicular", 19, 20))
sketch7.addConstraint(Sketcher.Constraint("Perpendicular", 20, 21))
sketch7.addConstraint(Sketcher.Constraint("Perpendicular", 21, 22))
sketch7.addConstraint(Sketcher.Constraint("Perpendicular", 22, 23))
sketch7.addConstraint(Sketcher.Constraint("Equal", 1, 3))
sketch7.addConstraint(Sketcher.Constraint("Equal", 0, 4))
sketch7.addConstraint(Sketcher.Constraint("Equal", 4, 6))
sketch7.addConstraint(Sketcher.Constraint("Equal", 3, 7))
sketch7.addConstraint(Sketcher.Constraint("Equal", 2, 8))
sketch7.addConstraint(Sketcher.Constraint("Equal", 7, 9))
sketch7.addConstraint(Sketcher.Constraint("Equal", 10, 12))
sketch7.addConstraint(Sketcher.Constraint("Equal", 9, 13))
sketch7.addConstraint(Sketcher.Constraint("Equal", 8, 14))
sketch7.addConstraint(Sketcher.Constraint("Equal", 13, 15))
sketch7.addConstraint(Sketcher.Constraint("Equal", 12, 16))
sketch7.addConstraint(Sketcher.Constraint("Equal", 11, 17))
sketch7.addConstraint(Sketcher.Constraint("Equal", 16, 18))
sketch7.addConstraint(Sketcher.Constraint("Equal", 15, 19))
sketch7.addConstraint(Sketcher.Constraint("Equal", 14, 20))
sketch7.addConstraint(Sketcher.Constraint("Equal", 19, 21))
sketch7.addConstraint(Sketcher.Constraint("Angle", 0, Q("-150 deg")))
sketch7.addConstraint(Sketcher.Constraint("Distance", 0, Q("6 mm")))
sketch7.addConstraint(Sketcher.Constraint("Distance", 5, Q("3 mm")))
sketch7.addConstraint(Sketcher.Constraint("Distance", 2, Q("2.5 mm")))
sketch7.addConstraint(Sketcher.Constraint("DistanceX", 9, 2, 12, 2, Q("23.5 mm")))
sketch7.addConstraint(Sketcher.Constraint("Distance", 1, Q("1.25 mm")))
sketch7.addConstraint(Sketcher.Constraint("DistanceY", -1, 1, 1, 2, Q("60.003348 mm")))
sketch7.addConstraint(Sketcher.Constraint("DistanceX", -1, 1, 4, 2, Q("312.10715 mm")))
sketch7.addConstraint(Sketcher.Constraint("DistanceY", -1, 1, 17, 2, Q("8.77147 mm")))
pocket5 = body.newObject("PartDesign::Pocket", "Pocket004")
pocket5.Profile = sketch7
pocket5.Length = 3

# Sketch on XZ plane
sketch8 = body.newObject("Sketcher::SketchObject", "Sketch007")
sketch8.AttachmentSupport = (doc.getObject("XZ_Plane"), [""])
sketch8.MapMode = "FlatFace"
sketch8.AttachmentOffset = App.Placement(App.Vector(0, 0, -70), App.Rotation())
sketch8.addGeometry(Part.LineSegment(App.Vector(0, 0, 0), App.Vector(0, 3, 0)), False)
sketch8.addGeometry(Part.LineSegment(App.Vector(0, 3, 0), App.Vector(39, 3, 0)), False)
sketch8.addGeometry(Part.LineSegment(App.Vector(39, 3, 0), App.Vector(39, 0, 0)), False)
sketch8.addGeometry(Part.LineSegment(App.Vector(39, 0, 0), App.Vector(0, 0, 0)), False)
sketch8.addConstraint(Sketcher.Constraint("Coincident", 0, 2, 1, 1))
sketch8.addConstraint(Sketcher.Constraint("Coincident", 1, 2, 2, 1))
sketch8.addConstraint(Sketcher.Constraint("Coincident", 2, 2, 3, 1))
sketch8.addConstraint(Sketcher.Constraint("Coincident", 3, 2, 0, 1))
sketch8.addConstraint(Sketcher.Constraint("Vertical", 0))
sketch8.addConstraint(Sketcher.Constraint("Horizontal", 1))
sketch8.addConstraint(Sketcher.Constraint("Vertical", 2))
sketch8.addConstraint(Sketcher.Constraint("Horizontal", 3))
sketch8.addConstraint(Sketcher.Constraint("Coincident", 3, 2, -1, 1))
sketch8.addConstraint(Sketcher.Constraint("DistanceX", 1, 1, 1, 2, Q("39 mm")))
sketch8.addConstraint(Sketcher.Constraint("DistanceY", 0, 1, 0, 2, Q("3 mm")))
pad3 = body.newObject("PartDesign::Pad", "Pad002")
pad3.Profile = sketch8
pad3.Length = 9
pad3.Reversed = True

# Sketch on an angled plane
sketch9 = body.newObject("Sketcher::SketchObject", "Sketch008")
sketch9.Placement = App.Placement(App.Vector(270.310889, 156.064065, 0), App.Rotation(App.Vector(0, 0, -1), App.Vector(-0.5, 0.866025404, 0), App.Vector(0.866025404, 0.5, 0), "ZXY"))
sketch9.addGeometry(Part.LineSegment(App.Vector(-3, -122.707259, 0), App.Vector(-3, -147.707259, 0)), False)
sketch9.addGeometry(Part.LineSegment(App.Vector(-3, -147.707259, 0), App.Vector(0, -147.707259, 0)), False)
sketch9.addGeometry(Part.LineSegment(App.Vector(0, -147.707259, 0), App.Vector(0, -122.707259, 0)), False)
sketch9.addGeometry(Part.LineSegment(App.Vector(0, -122.707259, 0), App.Vector(-3, -122.707259, 0)), False)
sketch9.addConstraint(Sketcher.Constraint("Coincident", 0, 2, 1, 1))
sketch9.addConstraint(Sketcher.Constraint("Coincident", 1, 2, 2, 1))
sketch9.addConstraint(Sketcher.Constraint("Coincident", 2, 2, 3, 1))
sketch9.addConstraint(Sketcher.Constraint("Coincident", 3, 2, 0, 1))
sketch9.addConstraint(Sketcher.Constraint("Vertical", 0))
sketch9.addConstraint(Sketcher.Constraint("Horizontal", 1))
sketch9.addConstraint(Sketcher.Constraint("Vertical", 2))
sketch9.addConstraint(Sketcher.Constraint("Horizontal", 3))
sketch9.addConstraint(Sketcher.Constraint("PointOnObject", 1, 2, -2))
sketch9.addConstraint(Sketcher.Constraint("DistanceX", 1, 1, 1, 2, Q("3 mm")))
sketch9.addConstraint(Sketcher.Constraint("DistanceY", 0, 2, 0, 1, Q("25 mm")))
sketch9.addConstraint(Sketcher.Constraint("DistanceY", 0, 2, -1, 1, Q("147.707259 mm")))
pad4 = body.newObject("PartDesign::Pad", "Pad003")
pad4.Profile = sketch9
pad4.Length = 3

# Sketch on YZ plane
sketch10 = body.newObject("Sketcher::SketchObject", "Sketch009")
sketch10.AttachmentSupport = (doc.getObject("YZ_Plane"), [""])
sketch10.MapMode = "FlatFace"
sketch10.addGeometry(Part.LineSegment(App.Vector(42.5, 0, 0), App.Vector(27.5, 0, 0)), False)
sketch10.addGeometry(Part.LineSegment(App.Vector(27.5, 0, 0), App.Vector(27.5, 3, 0)), False)
sketch10.addGeometry(Part.LineSegment(App.Vector(27.5, 3, 0), App.Vector(42.5, 3, 0)), False)
sketch10.addGeometry(Part.LineSegment(App.Vector(42.5, 3, 0), App.Vector(42.5, 0, 0)), False)
sketch10.addConstraint(Sketcher.Constraint("Coincident", 0, 2, 1, 1))
sketch10.addConstraint(Sketcher.Constraint("Coincident", 1, 2, 2, 1))
sketch10.addConstraint(Sketcher.Constraint("Coincident", 2, 2, 3, 1))
sketch10.addConstraint(Sketcher.Constraint("Coincident", 3, 2, 0, 1))
sketch10.addConstraint(Sketcher.Constraint("Horizontal", 0))
sketch10.addConstraint(Sketcher.Constraint("Vertical", 1))
sketch10.addConstraint(Sketcher.Constraint("Horizontal", 2))
sketch10.addConstraint(Sketcher.Constraint("Vertical", 3))
sketch10.addConstraint(Sketcher.Constraint("PointOnObject", 0, 2, -1))
sketch10.addConstraint(Sketcher.Constraint("DistanceX", 0, 2, 0, 1, Q("15 mm")))
sketch10.addConstraint(Sketcher.Constraint("DistanceY", 1, 1, 1, 2, Q("3 mm")))
sketch10.addConstraint(Sketcher.Constraint("DistanceX", -1, 1, 0, 2, Q("27.5 mm")))
pad5 = body.newObject("PartDesign::Pad", "Pad004")
pad5.Profile = sketch10
pad5.Length = 3
pad5.Reversed = True

# Sketch on XY plane
sketch11 = body.newObject("Sketcher::SketchObject", "Sketch010")
sketch11.AttachmentSupport = (doc.getObject("XY_Plane"), [""])
sketch11.MapMode = "FlatFace"
sketch11.AttachmentOffset = App.Placement(App.Vector(0, 0, 3), App.Rotation())
sketch11.addGeometry(Part.LineSegment(App.Vector(58, 73, 0), App.Vector(58, 70, 0)), False)
sketch11.addGeometry(Part.LineSegment(App.Vector(58, 70, 0), App.Vector(301, 70, 0)), False)
sketch11.addGeometry(Part.LineSegment(App.Vector(301, 70, 0), App.Vector(301, 73, 0)), False)
sketch11.addGeometry(Part.LineSegment(App.Vector(301, 73, 0), App.Vector(58, 73, 0)), False)
sketch11.addConstraint(Sketcher.Constraint("Coincident", 0, 2, 1, 1))
sketch11.addConstraint(Sketcher.Constraint("Coincident", 1, 2, 2, 1))
sketch11.addConstraint(Sketcher.Constraint("Coincident", 2, 2, 3, 1))
sketch11.addConstraint(Sketcher.Constraint("Coincident", 3, 2, 0, 1))
sketch11.addConstraint(Sketcher.Constraint("Vertical", 0))
sketch11.addConstraint(Sketcher.Constraint("Horizontal", 1))
sketch11.addConstraint(Sketcher.Constraint("Vertical", 2))
sketch11.addConstraint(Sketcher.Constraint("Horizontal", 3))
sketch11.addConstraint(Sketcher.Constraint("DistanceX", 1, 1, 1, 2, Q("243 mm")))
sketch11.addConstraint(Sketcher.Constraint("DistanceY", 0, 2, 0, 1, Q("3 mm")))
sketch11.addConstraint(Sketcher.Constraint("DistanceX", -1, 1, 0, 2, Q("58 mm")))
sketch11.addConstraint(Sketcher.Constraint("DistanceY", -1, 1, 0, 2, Q("70 mm")))
pocket6 = body.newObject("PartDesign::Pocket", "Pocket005")
pocket6.Profile = sketch11
pocket6.Length = 3

# Sketch on XY plane
sketch12 = body.newObject("Sketcher::SketchObject", "Sketch011")
sketch12.AttachmentSupport = (doc.getObject("XY_Plane"), [""])
sketch12.MapMode = "FlatFace"
sketch12.AttachmentOffset = App.Placement(App.Vector(0, 0, 3), App.Rotation())
sketch12.addGeometry(Part.LineSegment(App.Vector(303, 60, 0), App.Vector(303, 40, 0)), False)
sketch12.addGeometry(Part.LineSegment(App.Vector(303, 40, 0), App.Vector(306, 40, 0)), False)
sketch12.addGeometry(Part.LineSegment(App.Vector(306, 40, 0), App.Vector(306, 60, 0)), False)
sketch12.addGeometry(Part.LineSegment(App.Vector(306, 60, 0), App.Vector(303, 60, 0)), False)
sketch12.addConstraint(Sketcher.Constraint("Coincident", 0, 2, 1, 1))
sketch12.addConstraint(Sketcher.Constraint("Coincident", 1, 2, 2, 1))
sketch12.addConstraint(Sketcher.Constraint("Coincident", 2, 2, 3, 1))
sketch12.addConstraint(Sketcher.Constraint("Coincident", 3, 2, 0, 1))
sketch12.addConstraint(Sketcher.Constraint("Vertical", 0))
sketch12.addConstraint(Sketcher.Constraint("Horizontal", 1))
sketch12.addConstraint(Sketcher.Constraint("Vertical", 2))
sketch12.addConstraint(Sketcher.Constraint("Horizontal", 3))
sketch12.addConstraint(Sketcher.Constraint("DistanceX", 1, 1, 1, 2, Q("3 mm")))
sketch12.addConstraint(Sketcher.Constraint("DistanceY", 0, 2, 0, 1, Q("20 mm")))
sketch12.addConstraint(Sketcher.Constraint("DistanceX", -1, 1, 0, 2, Q("303 mm")))
sketch12.addConstraint(Sketcher.Constraint("DistanceY", -1, 1, 0, 2, Q("40 mm")))
pocket7 = body.newObject("PartDesign::Pocket", "Pocket006")
pocket7.Profile = sketch12
pocket7.Length = 10

# Sketch on XY plane
sketch13 = body.newObject("Sketcher::SketchObject", "Sketch012")
sketch13.AttachmentSupport = (doc.getObject("XY_Plane"), [""])
sketch13.MapMode = "FlatFace"
sketch13.AttachmentOffset = App.Placement(App.Vector(0, 0, 3), App.Rotation())
sketch13.addGeometry(Part.LineSegment(App.Vector(25.5, 79, 0), App.Vector(25.5, 73, 0)), False)
sketch13.addGeometry(Part.LineSegment(App.Vector(25.5, 73, 0), App.Vector(24.25, 73, 0)), False)
sketch13.addGeometry(Part.LineSegment(App.Vector(24.25, 73, 0), App.Vector(24.25, 70.5, 0)), False)
sketch13.addGeometry(Part.LineSegment(App.Vector(24.25, 70.5, 0), App.Vector(25.5, 70.5, 0)), False)
sketch13.addGeometry(Part.LineSegment(App.Vector(25.5, 70.5, 0), App.Vector(25.5, 64.5, 0)), False)
sketch13.addGeometry(Part.LineSegment(App.Vector(25.5, 64.5, 0), App.Vector(28.5, 64.5, 0)), False)
sketch13.addGeometry(Part.LineSegment(App.Vector(28.5, 64.5, 0), App.Vector(28.5, 70.5, 0)), False)
sketch13.addGeometry(Part.LineSegment(App.Vector(28.5, 70.5, 0), App.Vector(29.75, 70.5, 0)), False)
sketch13.addGeometry(Part.LineSegment(App.Vector(29.75, 70.5, 0), App.Vector(29.75, 73, 0)), False)
sketch13.addGeometry(Part.LineSegment(App.Vector(29.75, 73, 0), App.Vector(28.5, 73, 0)), False)
sketch13.addGeometry(Part.LineSegment(App.Vector(28.5, 73, 0), App.Vector(28.5, 79, 0)), False)
sketch13.addGeometry(Part.LineSegment(App.Vector(28.5, 79, 0), App.Vector(25.5, 79, 0)), False)
sketch13.addConstraint(Sketcher.Constraint("Coincident", 0, 2, 1, 1))
sketch13.addConstraint(Sketcher.Constraint("Coincident", 1, 2, 2, 1))
sketch13.addConstraint(Sketcher.Constraint("Coincident", 2, 2, 3, 1))
sketch13.addConstraint(Sketcher.Constraint("Coincident", 3, 2, 4, 1))
sketch13.addConstraint(Sketcher.Constraint("Coincident", 4, 2, 5, 1))
sketch13.addConstraint(Sketcher.Constraint("Coincident", 5, 2, 6, 1))
sketch13.addConstraint(Sketcher.Constraint("Coincident", 6, 2, 7, 1))
sketch13.addConstraint(Sketcher.Constraint("Coincident", 7, 2, 8, 1))
sketch13.addConstraint(Sketcher.Constraint("Coincident", 8, 2, 9, 1))
sketch13.addConstraint(Sketcher.Constraint("Coincident", 9, 2, 10, 1))
sketch13.addConstraint(Sketcher.Constraint("Coincident", 10, 2, 11, 1))
sketch13.addConstraint(Sketcher.Constraint("Coincident", 11, 2, 0, 1))
sketch13.addConstraint(Sketcher.Constraint("Vertical", 0))
sketch13.addConstraint(Sketcher.Constraint("Horizontal", 1))
sketch13.addConstraint(Sketcher.Constraint("Vertical", 2))
sketch13.addConstraint(Sketcher.Constraint("Horizontal", 3))
sketch13.addConstraint(Sketcher.Constraint("Vertical", 4))
sketch13.addConstraint(Sketcher.Constraint("Horizontal", 5))
sketch13.addConstraint(Sketcher.Constraint("Vertical", 6))
sketch13.addConstraint(Sketcher.Constraint("Horizontal", 7))
sketch13.addConstraint(Sketcher.Constraint("Vertical", 8))
sketch13.addConstraint(Sketcher.Constraint("Horizontal", 9))
sketch13.addConstraint(Sketcher.Constraint("Vertical", 10))
sketch13.addConstraint(Sketcher.Constraint("Horizontal", 11))
sketch13.addConstraint(Sketcher.Constraint("Horizontal", 3, 2, 6, 2))
sketch13.addConstraint(Sketcher.Constraint("Horizontal", 1, 2, 8, 2))
sketch13.addConstraint(Sketcher.Constraint("Vertical", 0, 2, 3, 2))
sketch13.addConstraint(Sketcher.Constraint("Vertical", 6, 2, 9, 2))
sketch13.addConstraint(Sketcher.Constraint("Equal", 3, 7))
sketch13.addConstraint(Sketcher.Constraint("Equal", 0, 4))
sketch13.addConstraint(Sketcher.Constraint("DistanceX", 5, 1, 5, 2, Q("3 mm")))
sketch13.addConstraint(Sketcher.Constraint("DistanceY", 0, 2, 0, 1, Q("6 mm")))
sketch13.addConstraint(Sketcher.Constraint("DistanceY", 2, 2, 2, 1, Q("2.5 mm")))
sketch13.addConstraint(Sketcher.Constraint("DistanceY", -1, 1, 0, 2, Q("73 mm")))
sketch13.addConstraint(Sketcher.Constraint("DistanceX", 1, 2, 1, 1, Q("1.25 mm")))
sketch13.addConstraint(Sketcher.Constraint("DistanceX", -1, 1, 0, 2, Q("25.5 mm")))
pocket8 = body.newObject("PartDesign::Pocket", "Pocket007")
pocket8.Profile = sketch13
pocket8.Length = 3

# Sketch on XY plane
sketch14 = body.newObject("Sketcher::SketchObject", "Sketch013")
sketch14.AttachmentSupport = (doc.getObject("XY_Plane"), [""])
sketch14.MapMode = "FlatFace"
sketch14.AttachmentOffset = App.Placement(App.Vector(0, 0, 3), App.Rotation())
sketch14.addGeometry(Part.LineSegment(App.Vector(17.75, 74.898902, 0), App.Vector(8.75, 74.898902, 0)), False)
sketch14.addGeometry(Part.LineSegment(App.Vector(8.75, 74.898902, 0), App.Vector(8.75, 79, 0)), False)
sketch14.addGeometry(Part.LineSegment(App.Vector(8.75, 79, 0), App.Vector(4.75, 79, 0)), False)
sketch14.addGeometry(Part.LineSegment(App.Vector(4.75, 79, 0), App.Vector(4.75, 71.898902, 0)), False)
sketch14.addGeometry(Part.ArcOfCircle(Part.Circle(App.Vector(7.75, 71.898902, 0), App.Vector(0, 0, 1), 3), math.radians(180), math.radians(270)), False)
sketch14.addGeometry(Part.LineSegment(App.Vector(7.75, 68.898902, 0), App.Vector(17.75, 68.898902, 0)), False)
sketch14.addGeometry(Part.ArcOfCircle(Part.Circle(App.Vector(17.75, 71.898902, 0), App.Vector(0, 0, 1), 3), math.radians(-90), math.radians(90)), False)
sketch14.addConstraint(Sketcher.Constraint("Coincident", 0, 2, 1, 1))
sketch14.addConstraint(Sketcher.Constraint("Coincident", 1, 2, 2, 1))
sketch14.addConstraint(Sketcher.Constraint("Coincident", 2, 2, 3, 1))
sketch14.addConstraint(Sketcher.Constraint("Tangent", 3, 2, 4, 1))
sketch14.addConstraint(Sketcher.Constraint("Tangent", 4, 2, 5, 1))
sketch14.addConstraint(Sketcher.Constraint("Tangent", 5, 2, 6, 1))
sketch14.addConstraint(Sketcher.Constraint("Tangent", 6, 2, 0, 1))
sketch14.addConstraint(Sketcher.Constraint("Horizontal", 0))
sketch14.addConstraint(Sketcher.Constraint("Vertical", 1))
sketch14.addConstraint(Sketcher.Constraint("Horizontal", 2))
sketch14.addConstraint(Sketcher.Constraint("Vertical", 3))
sketch14.addConstraint(Sketcher.Constraint("Horizontal", 5))
sketch14.addConstraint(Sketcher.Constraint("Equal", 4, 6))
sketch14.addConstraint(Sketcher.Constraint("Radius", 4, Q("3 mm")))
sketch14.addConstraint(Sketcher.Constraint("DistanceX", 0, 2, 0, 1, Q("9 mm")))
sketch14.addConstraint(Sketcher.Constraint("DistanceX", 2, 2, 2, 1, Q("4 mm")))
sketch14.addConstraint(Sketcher.Constraint("DistanceY", -1, 1, 1, 2, Q("79 mm")))
sketch14.addConstraint(Sketcher.Constraint("DistanceX", -1, 1, 4, 3, Q("7.75 mm")))
sketch14.addConstraint(Sketcher.Constraint("DistanceY", 1, 1, 1, 2, Q("4.101098 mm")))
pocket9 = body.newObject("PartDesign::Pocket", "Pocket008")
pocket9.Profile = sketch14
pocket9.Length = 10

# Sketch on XY plane
sketch15 = body.newObject("Sketcher::SketchObject", "Sketch014")
sketch15.AttachmentSupport = (doc.getObject("XY_Plane"), [""])
sketch15.MapMode = "FlatFace"
sketch15.AttachmentOffset = App.Placement(App.Vector(0, 0, 3), App.Rotation())
sketch15.addGeometry(Part.LineSegment(App.Vector(219, 70, 0), App.Vector(219, 51.5, 0)), False)
sketch15.addGeometry(Part.ArcOfCircle(Part.Circle(App.Vector(224, 51.5, 0), App.Vector(0, 0, 1), 5), math.radians(180), math.radians(450)), False)
sketch15.addGeometry(Part.LineSegment(App.Vector(224, 56.5, 0), App.Vector(224, 70, 0)), False)
sketch15.addGeometry(Part.LineSegment(App.Vector(224, 70, 0), App.Vector(219, 70, 0)), False)
sketch15.addConstraint(Sketcher.Constraint("Tangent", 0, 2, 1, 1))
sketch15.addConstraint(Sketcher.Constraint("Coincident", 1, 2, 2, 1))
sketch15.addConstraint(Sketcher.Constraint("Coincident", 2, 2, 3, 1))
sketch15.addConstraint(Sketcher.Constraint("Coincident", 3, 2, 0, 1))
sketch15.addConstraint(Sketcher.Constraint("Vertical", 0))
sketch15.addConstraint(Sketcher.Constraint("Vertical", 2))
sketch15.addConstraint(Sketcher.Constraint("Horizontal", 3))
sketch15.addConstraint(Sketcher.Constraint("Radius", 1, Q("5 mm")))
sketch15.addConstraint(Sketcher.Constraint("DistanceX", 3, 2, 3, 1, Q("5 mm")))
sketch15.addConstraint(Sketcher.Constraint("DistanceY", 0, 2, 0, 1, Q("18.5 mm")))
sketch15.addConstraint(Sketcher.Constraint("DistanceX", -1, 1, 1, 3, Q("224 mm")))
sketch15.addConstraint(Sketcher.Constraint("DistanceY", -1, 1, 2, 2, Q("70 mm")))
pocket10 = body.newObject("PartDesign::Pocket", "Pocket009")
pocket10.Profile = sketch15
pocket10.Length = 10

doc.recompute()
